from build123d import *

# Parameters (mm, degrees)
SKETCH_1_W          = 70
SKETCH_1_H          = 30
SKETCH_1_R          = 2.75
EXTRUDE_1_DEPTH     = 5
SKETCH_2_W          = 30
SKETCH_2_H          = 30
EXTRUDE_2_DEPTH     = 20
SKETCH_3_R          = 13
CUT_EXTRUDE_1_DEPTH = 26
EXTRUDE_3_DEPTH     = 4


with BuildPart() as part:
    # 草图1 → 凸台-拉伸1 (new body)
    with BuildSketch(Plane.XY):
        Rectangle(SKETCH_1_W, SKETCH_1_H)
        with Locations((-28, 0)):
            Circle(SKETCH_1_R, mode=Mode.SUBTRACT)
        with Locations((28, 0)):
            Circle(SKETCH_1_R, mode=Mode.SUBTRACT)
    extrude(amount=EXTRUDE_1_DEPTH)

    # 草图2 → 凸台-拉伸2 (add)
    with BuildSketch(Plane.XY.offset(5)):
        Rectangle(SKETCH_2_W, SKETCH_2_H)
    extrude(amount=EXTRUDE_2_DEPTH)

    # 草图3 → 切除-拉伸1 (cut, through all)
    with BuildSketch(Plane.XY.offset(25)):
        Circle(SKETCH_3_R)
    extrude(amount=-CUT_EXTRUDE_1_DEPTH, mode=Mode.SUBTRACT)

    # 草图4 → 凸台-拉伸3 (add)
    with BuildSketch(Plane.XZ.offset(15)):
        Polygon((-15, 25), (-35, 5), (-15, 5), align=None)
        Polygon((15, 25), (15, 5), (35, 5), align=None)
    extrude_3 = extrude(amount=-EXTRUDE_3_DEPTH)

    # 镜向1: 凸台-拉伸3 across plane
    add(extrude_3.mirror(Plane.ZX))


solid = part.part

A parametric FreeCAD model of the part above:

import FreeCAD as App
import Part
import Sketcher

doc = App.newDocument("Part")
body = doc.addObject("PartDesign::Body", "Body")

# Sketch on XY plane
sketch1 = body.newObject("Sketcher::SketchObject", "Sketch")
sketch1.AttachmentSupport = (doc.getObject("XY_Plane"), [""])
sketch1.MapMode = "FlatFace"
sketch1.addGeometry(Part.LineSegment(App.Vector(-35, 15, 0), App.Vector(-35, -15, 0)), False)
sketch1.addGeometry(Part.LineSegment(App.Vector(-35, -15, 0), App.Vector(35, -15, 0)), False)
sketch1.addGeometry(Part.LineSegment(App.Vector(35, -15, 0), App.Vector(35, 15, 0)), False)
sketch1.addGeometry(Part.LineSegment(App.Vector(35, 15, 0), App.Vector(-35, 15, 0)), False)
sketch1.addGeometry(Part.Circle(App.Vector(-28, 0, 0), App.Vector(0, 0, 1), 2.8), False)
sketch1.addGeometry(Part.Circle(App.Vector(28, 0, 0), App.Vector(0, 0, 1), 2.8), False)
sketch1.addConstraint(Sketcher.Constraint("Coincident", 0, 2, 1, 1))
sketch1.addConstraint(Sketcher.Constraint("Coincident", 1, 2, 2, 1))
sketch1.addConstraint(Sketcher.Constraint("Coincident", 2, 2, 3, 1))
sketch1.addConstraint(Sketcher.Constraint("Coincident", 3, 2, 0, 1))
sketch1.addConstraint(Sketcher.Constraint("Vertical", 0))
sketch1.addConstraint(Sketcher.Constraint("Horizontal", 1))
sketch1.addConstraint(Sketcher.Constraint("Vertical", 2))
sketch1.addConstraint(Sketcher.Constraint("Horizontal", 3))
sketch1.addConstraint(Sketcher.Constraint("Equal", 4, 5))
sketch1.addConstraint(Sketcher.Constraint("Symmetric", 4, 3, 5, 3, -1, 1))
sketch1.addConstraint(Sketcher.Constraint("Symmetric", 0, 2, 2, 2, -1, 1))
sketch1.addConstraint(Sketcher.Constraint("PointOnObject", 4, 3, -1))
sketch1.addConstraint(Sketcher.Constraint("Diameter", 4, 5.5))
sketch1.addConstraint(Sketcher.Constraint("DistanceX", 1, 1, 1, 2, 70.0))
sketch1.addConstraint(Sketcher.Constraint("DistanceY", 0, 2, 0, 1, 30.0))
sketch1.addConstraint(Sketcher.Constraint("DistanceX", 4, 3, -1, 1, 28.0))
pad1 = body.newObject("PartDesign::Pad", "Pad")
pad1.Profile = sketch1
pad1.Length = 5

# Sketch on XY plane
sketch2 = body.newObject("Sketcher::SketchObject", "Sketch001")
sketch2.AttachmentSupport = (doc.getObject("XY_Plane"), [""])
sketch2.MapMode = "FlatFace"
sketch2.AttachmentOffset = App.Placement(App.Vector(0, 0, 5), App.Rotation())
sketch2.addGeometry(Part.LineSegment(App.Vector(-15, 15, 0), App.Vector(-15, -15, 0)), False)
sketch2.addGeometry(Part.LineSegment(App.Vector(-15, -15, 0), App.Vector(15, -15, 0)), False)
sketch2.addGeometry(Part.LineSegment(App.Vector(15, -15, 0), App.Vector(15, 15, 0)), False)
sketch2.addGeometry(Part.LineSegment(App.Vector(15, 15, 0), App.Vector(-15, 15, 0)), False)
sketch2.addConstraint(Sketcher.Constraint("Coincident", 0, 2, 1, 1))
sketch2.addConstraint(Sketcher.Constraint("Coincident", 1, 2, 2, 1))
sketch2.addConstraint(Sketcher.Constraint("Coincident", 2, 2, 3, 1))
sketch2.addConstraint(Sketcher.Constraint("Coincident", 3, 2, 0, 1))
sketch2.addConstraint(Sketcher.Constraint("Vertical", 0))
sketch2.addConstraint(Sketcher.Constraint("Horizontal", 1))
sketch2.addConstraint(Sketcher.Constraint("Vertical", 2))
sketch2.addConstraint(Sketcher.Constraint("Horizontal", 3))
sketch2.addConstraint(Sketcher.Constraint("Symmetric", 0, 2, 2, 2, -1, 1))
sketch2.addConstraint(Sketcher.Constraint("Equal", 3, 0))
sketch2.addConstraint(Sketcher.Constraint("DistanceX", 1, 1, 1, 2, 30.0))
pad2 = body.newObject("PartDesign::Pad", "Pad001")
pad2.Profile = sketch2
pad2.Length = 20

# Sketch on XY plane
sketch3 = body.newObject("Sketcher::SketchObject", "Sketch002")
sketch3.AttachmentSupport = (doc.getObject("XY_Plane"), [""])
sketch3.MapMode = "FlatFace"
sketch3.AttachmentOffset = App.Placement(App.Vector(0, 0, 25), App.Rotation())
sketch3.addGeometry(Part.Circle(App.Vector(0, 0, 0), App.Vector(0, 0, 1), 13), False)
sketch3.addConstraint(Sketcher.Constraint("Coincident", 0, 3, -1, 1))
sketch3.addConstraint(Sketcher.Constraint("Diameter", 0, 26.0))
pocket1 = body.newObject("PartDesign::Pocket", "Pocket")
pocket1.Profile = sketch3
pocket1.Type = "ThroughAll"

# Sketch on XZ plane
sketch4 = body.newObject("Sketcher::SketchObject", "Sketch003")
sketch4.AttachmentSupport = (doc.getObject("XZ_Plane"), [""])
sketch4.MapMode = "FlatFace"
sketch4.AttachmentOffset = App.Placement(App.Vector(0, 0, 15), App.Rotation())
sketch4.addGeometry(Part.LineSegment(App.Vector(-15, 25, 0), App.Vector(-35, 5, 0)), False)
sketch4.addGeometry(Part.LineSegment(App.Vector(-35, 5, 0), App.Vector(-15, 5, 0)), False)
sketch4.addGeometry(Part.LineSegment(App.Vector(-15, 5, 0), App.Vector(-15, 25, 0)), False)
sketch4.addGeometry(Part.LineSegment(App.Vector(15, 25, 0), App.Vector(15, 5, 0)), False)
sketch4.addGeometry(Part.LineSegment(App.Vector(15, 5, 0), App.Vector(35, 5, 0)), False)
sketch4.addGeometry(Part.LineSegment(App.Vector(35, 5, 0), App.Vector(15, 25, 0)), False)
sketch4.addConstraint(Sketcher.Constraint("Coincident", 0, 2, 1, 1))
sketch4.addConstraint(Sketcher.Constraint("Coincident", 1, 2, 2, 1))
sketch4.addConstraint(Sketcher.Constraint("Coincident", 2, 2, 0, 1))
sketch4.addConstraint(Sketcher.Constraint("Coincident", 3, 2, 4, 1))
sketch4.addConstraint(Sketcher.Constraint("Coincident", 4, 2, 5, 1))
sketch4.addConstraint(Sketcher.Constraint("Coincident", 5, 2, 3, 1))
sketch4.addConstraint(Sketcher.Constraint("Horizontal", 1))
sketch4.addConstraint(Sketcher.Constraint("Vertical", 2))
sketch4.addConstraint(Sketcher.Constraint("Vertical", 3))
sketch4.addConstraint(Sketcher.Constraint("Horizontal", 4))
sketch4.addConstraint(Sketcher.Constraint("Symmetric", 1, 2, 3, 2, -2))
sketch4.addConstraint(Sketcher.Constraint("Perpendicular", 0, 5))
sketch4.addConstraint(Sketcher.Constraint("Horizontal", 2, 2, 5, 2))
sketch4.addConstraint(Sketcher.Constraint("Equal", 1, 4))
sketch4.addConstraint(Sketcher.Constraint("DistanceX", 1, 1, 1, 2, 20.0))
sketch4.addConstraint(Sketcher.Constraint("DistanceX", 0, 2, -1, 1, 35.0))
sketch4.addConstraint(Sketcher.Constraint("DistanceY", -1, 1, 0, 2, 5.0))
pad3 = body.newObject("PartDesign::Pad", "Pad002")
pad3.Profile = sketch4
pad3.Length = 4
pad3.Reversed = True
doc.recompute()

mirrored = body.newObject("PartDesign::Mirrored", "Mirrored")
mirrored.Originals = [pad3]
mirrored.MirrorPlane = (doc.getObject("XZ_Plane"), [""])
body.Tip = mirrored

doc.recompute()
